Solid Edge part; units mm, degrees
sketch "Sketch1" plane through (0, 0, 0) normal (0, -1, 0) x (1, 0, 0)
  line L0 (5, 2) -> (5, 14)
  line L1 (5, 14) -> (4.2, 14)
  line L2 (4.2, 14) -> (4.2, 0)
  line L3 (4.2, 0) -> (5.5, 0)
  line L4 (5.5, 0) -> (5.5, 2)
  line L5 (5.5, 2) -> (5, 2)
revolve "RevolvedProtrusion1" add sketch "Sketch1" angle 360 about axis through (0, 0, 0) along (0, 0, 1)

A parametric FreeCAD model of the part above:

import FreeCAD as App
import Part
import Sketcher
from FreeCAD import Vector
Q = App.Units.Quantity


def add_polygon(sketch, points):
    """Adds a closed chain of lines whose ends are joined by coincident constraints."""
    first, n = sketch.GeometryCount, len(points)
    for a, b in zip(points, points[1:] + points[:1]):
        sketch.addGeometry(Part.LineSegment(App.Vector(*a, 0), App.Vector(*b, 0)), False)
    for i in range(n):
        sketch.addConstraint(Sketcher.Constraint("Coincident", first + i, 2, first + (i + 1) % n, 1))

doc = App.newDocument("Part")
body = doc.addObject("PartDesign::Body", "Body")

# Sketch on XZ plane
sketch1 = body.newObject("Sketcher::SketchObject", "Sketch")
sketch1.AttachmentSupport = (doc.getObject("XZ_Plane"), [""])
sketch1.MapMode = "FlatFace"
add_polygon(sketch1, [(5.5, 2), (5, 2), (5, 14), (4.2, 14), (4.2, 0), (5.5, 0)])  # lines 0-5
sketch1.addConstraint([
    Sketcher.Constraint("Horizontal", 0),
    Sketcher.Constraint("Vertical", 1),
    Sketcher.Constraint("Horizontal", 2),
    Sketcher.Constraint("Vertical", 3),
    Sketcher.Constraint("Horizontal", 4),
    Sketcher.Constraint("Vertical", 5),
    Sketcher.Constraint("PointOnObject", 3, 2, -1),
    Sketcher.Constraint("DistanceY", 1, 1, 1, 2, Q("12 mm")),
    Sketcher.Constraint("DistanceY", 3, 2, 3, 1, Q("14 mm")),
    Sketcher.Constraint("DistanceX", 0, 2, 0, 1, Q("0.5 mm")),
    Sketcher.Constraint("DistanceX", 2, 2, 2, 1, Q("0.8 mm")),
    Sketcher.Constraint("DistanceX", -1, 1, 0, 2, Q("5 mm")),
])
revolution = body.newObject("PartDesign::Revolution", "Revolution")
revolution.Profile = sketch1
revolution.ReferenceAxis = (sketch1, ["V_Axis"])
revolution.Angle = 360

doc.recompute()
